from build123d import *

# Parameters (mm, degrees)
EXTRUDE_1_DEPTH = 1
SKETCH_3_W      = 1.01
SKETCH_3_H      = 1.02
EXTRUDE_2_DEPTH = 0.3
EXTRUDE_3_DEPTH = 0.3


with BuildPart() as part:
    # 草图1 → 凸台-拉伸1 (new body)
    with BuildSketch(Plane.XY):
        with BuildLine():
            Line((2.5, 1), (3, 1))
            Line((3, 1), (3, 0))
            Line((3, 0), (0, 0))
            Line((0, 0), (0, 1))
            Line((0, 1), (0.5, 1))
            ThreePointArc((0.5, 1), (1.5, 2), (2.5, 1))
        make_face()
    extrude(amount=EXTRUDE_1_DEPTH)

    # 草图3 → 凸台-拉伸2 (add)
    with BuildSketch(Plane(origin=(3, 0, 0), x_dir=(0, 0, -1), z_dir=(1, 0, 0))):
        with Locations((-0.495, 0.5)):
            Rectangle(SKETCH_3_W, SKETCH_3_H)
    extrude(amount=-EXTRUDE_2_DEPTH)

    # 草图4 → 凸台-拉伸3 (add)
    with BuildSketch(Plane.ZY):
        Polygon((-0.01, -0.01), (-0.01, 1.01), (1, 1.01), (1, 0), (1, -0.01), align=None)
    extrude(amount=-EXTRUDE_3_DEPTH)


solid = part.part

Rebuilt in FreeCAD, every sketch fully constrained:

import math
import FreeCAD as App
import Part
import Sketcher

V = App.Vector
Q = App.Units.Quantity

doc = App.newDocument("Part")
params = doc.addObject("Spreadsheet::Sheet", "Params")
for row, (alias, value) in enumerate([
    ("sketch1_radius", "1 mm"),
    ("sketch1_width", "3 mm"),
    ("sketch1_height", "1 mm"),
    ("pad1_length", "1 mm"),
    ("sketch2_width", "1.02 mm"),
    ("sketch2_height", "1.01 mm"),
    ("pad2_length", "0.3 mm"),
    ("sketch3_width", "1.02 mm"),
    ("sketch3_height", "1.01 mm"),
    ("pad3_length", "0.3 mm"),
], start=1):
    params.set(f"A{row}", alias)
    params.set(f"B{row}", "=" + value)
    params.setAlias(f"B{row}", alias)

body = doc.addObject("PartDesign::Body", "Body")

sketch1 = body.newObject("Sketcher::SketchObject", "Sketch")
sketch1.AttachmentSupport = (doc.getObject("XY_Plane"), [""])
sketch1.MapMode = "FlatFace"
sketch1.addGeometry([
    Part.LineSegment(V(3, 1, 0), V(2.5, 1, 0)),
    Part.ArcOfCircle(Part.Circle(V(1.5, 1, 0), V(0, 0, 1), 1), math.radians(0), math.radians(180)),
    Part.LineSegment(V(0.5, 1, 0), V(0, 1, 0)),
    Part.LineSegment(V(0, 1, 0), V(0, 0, 0)),
    Part.LineSegment(V(0, 0, 0), V(3, 0, 0)),
    Part.LineSegment(V(3, 0, 0), V(3, 1, 0)),
], False)
sketch1.addConstraint([
    Sketcher.Constraint("Coincident", 0, 2, 1, 1),
    Sketcher.Constraint("Coincident", 1, 2, 2, 1),
    Sketcher.Constraint("Coincident", 2, 2, 3, 1),
    Sketcher.Constraint("Coincident", 3, 2, 4, 1),
    Sketcher.Constraint("Coincident", 4, 2, 5, 1),
    Sketcher.Constraint("Coincident", 5, 2, 0, 1),
    Sketcher.Constraint("Horizontal", 0),
    Sketcher.Constraint("Horizontal", 2),
    Sketcher.Constraint("Vertical", 3),
    Sketcher.Constraint("Horizontal", 4),
    Sketcher.Constraint("Vertical", 5),
    Sketcher.Constraint("Coincident", 3, 2, -1, 1),
    Sketcher.Constraint("Horizontal", 1, 3, 0, 2),
    Sketcher.Constraint("Horizontal", 0, 2, 1, 2),
    Sketcher.Constraint("Equal", 0, 2),
    Sketcher.Constraint("Radius", 1, Q("1 mm")),
    Sketcher.Constraint("DistanceX", 4, 1, 4, 2, Q("3 mm")),
    Sketcher.Constraint("DistanceY", 3, 2, 3, 1, Q("1 mm")),
])
sketch1.setExpression("Constraints[15]", "Params.sketch1_radius")
sketch1.setExpression("Constraints[16]", "Params.sketch1_width")
sketch1.setExpression("Constraints[17]", "Params.sketch1_height")
pad1 = body.newObject("PartDesign::Pad", "Pad")
pad1.Profile = sketch1
pad1.setExpression("Length", "Params.pad1_length")

sketch2 = body.newObject("Sketcher::SketchObject", "Sketch001")
sketch2.AttachmentSupport = (doc.getObject("YZ_Plane"), [""])
sketch2.MapMode = "FlatFace"
sketch2.AttachmentOffset = App.Placement(V(0, 0, 3), App.Rotation())
sketch2.addGeometry([
    Part.LineSegment(V(1, 1, 0), V(0, 1, 0)),
    Part.LineSegment(V(0, 1, 0), V(0, 0, 0)),
    Part.LineSegment(V(0, 0, 0), V(1, 0, 0)),
    Part.LineSegment(V(1, 0, 0), V(1, 1, 0)),
], False)
sketch2.addConstraint([
    Sketcher.Constraint("Coincident", 0, 2, 1, 1),
    Sketcher.Constraint("Coincident", 1, 2, 2, 1),
    Sketcher.Constraint("Coincident", 2, 2, 3, 1),
    Sketcher.Constraint("Coincident", 3, 2, 0, 1),
    Sketcher.Constraint("Horizontal", 0),
    Sketcher.Constraint("Vertical", 1),
    Sketcher.Constraint("Horizontal", 2),
    Sketcher.Constraint("Vertical", 3),
    Sketcher.Constraint("DistanceY", -1, 1, 0, 2, Q("1 mm")),
    Sketcher.Constraint("DistanceX", 0, 2, 0, 1, Q("1.02 mm")),
    Sketcher.Constraint("DistanceY", 1, 2, 1, 1, Q("1.01 mm")),
    Sketcher.Constraint("DistanceX", 0, 2, -1, 1, Q("0.01 mm")),
])
sketch2.setExpression("Constraints[9]", "Params.sketch2_width")
sketch2.setExpression("Constraints[10]", "Params.sketch2_height")
pad2 = body.newObject("PartDesign::Pad", "Pad001")
pad2.Profile = sketch2
pad2.setExpression("Length", "Params.pad2_length")
pad2.Reversed = True

sketch3 = body.newObject("Sketcher::SketchObject", "Sketch002")
sketch3.AttachmentSupport = (doc.getObject("YZ_Plane"), [""])
sketch3.MapMode = "FlatFace"
sketch3.addGeometry([
    Part.LineSegment(V(1, 0, 0), V(0, 0, 0)),
    Part.LineSegment(V(0, 0, 0), V(0, 1, 0)),
    Part.LineSegment(V(0, 1, 0), V(1, 1, 0)),
    Part.LineSegment(V(1, 1, 0), V(1, 0, 0)),
], False)
sketch3.addConstraint([
    Sketcher.Constraint("Coincident", 0, 2, 1, 1),
    Sketcher.Constraint("Coincident", 1, 2, 2, 1),
    Sketcher.Constraint("Coincident", 2, 2, 3, 1),
    Sketcher.Constraint("Coincident", 3, 2, 0, 1),
    Sketcher.Constraint("Horizontal", 0),
    Sketcher.Constraint("Vertical", 1),
    Sketcher.Constraint("Horizontal", 2),
    Sketcher.Constraint("Vertical", 3),
    Sketcher.Constraint("DistanceY", -1, 1, 1, 2, Q("1 mm")),
    Sketcher.Constraint("DistanceX", 0, 2, 0, 1, Q("1.02 mm")),
    Sketcher.Constraint("DistanceY", 1, 1, 1, 2, Q("1.01 mm")),
    Sketcher.Constraint("DistanceX", 0, 2, -1, 1, Q("0.01 mm")),
])
sketch3.setExpression("Constraints[9]", "Params.sketch3_width")
sketch3.setExpression("Constraints[10]", "Params.sketch3_height")
pad3 = body.newObject("PartDesign::Pad", "Pad002")
pad3.Profile = sketch3
pad3.setExpression("Length", "Params.pad3_length")

doc.recompute()
